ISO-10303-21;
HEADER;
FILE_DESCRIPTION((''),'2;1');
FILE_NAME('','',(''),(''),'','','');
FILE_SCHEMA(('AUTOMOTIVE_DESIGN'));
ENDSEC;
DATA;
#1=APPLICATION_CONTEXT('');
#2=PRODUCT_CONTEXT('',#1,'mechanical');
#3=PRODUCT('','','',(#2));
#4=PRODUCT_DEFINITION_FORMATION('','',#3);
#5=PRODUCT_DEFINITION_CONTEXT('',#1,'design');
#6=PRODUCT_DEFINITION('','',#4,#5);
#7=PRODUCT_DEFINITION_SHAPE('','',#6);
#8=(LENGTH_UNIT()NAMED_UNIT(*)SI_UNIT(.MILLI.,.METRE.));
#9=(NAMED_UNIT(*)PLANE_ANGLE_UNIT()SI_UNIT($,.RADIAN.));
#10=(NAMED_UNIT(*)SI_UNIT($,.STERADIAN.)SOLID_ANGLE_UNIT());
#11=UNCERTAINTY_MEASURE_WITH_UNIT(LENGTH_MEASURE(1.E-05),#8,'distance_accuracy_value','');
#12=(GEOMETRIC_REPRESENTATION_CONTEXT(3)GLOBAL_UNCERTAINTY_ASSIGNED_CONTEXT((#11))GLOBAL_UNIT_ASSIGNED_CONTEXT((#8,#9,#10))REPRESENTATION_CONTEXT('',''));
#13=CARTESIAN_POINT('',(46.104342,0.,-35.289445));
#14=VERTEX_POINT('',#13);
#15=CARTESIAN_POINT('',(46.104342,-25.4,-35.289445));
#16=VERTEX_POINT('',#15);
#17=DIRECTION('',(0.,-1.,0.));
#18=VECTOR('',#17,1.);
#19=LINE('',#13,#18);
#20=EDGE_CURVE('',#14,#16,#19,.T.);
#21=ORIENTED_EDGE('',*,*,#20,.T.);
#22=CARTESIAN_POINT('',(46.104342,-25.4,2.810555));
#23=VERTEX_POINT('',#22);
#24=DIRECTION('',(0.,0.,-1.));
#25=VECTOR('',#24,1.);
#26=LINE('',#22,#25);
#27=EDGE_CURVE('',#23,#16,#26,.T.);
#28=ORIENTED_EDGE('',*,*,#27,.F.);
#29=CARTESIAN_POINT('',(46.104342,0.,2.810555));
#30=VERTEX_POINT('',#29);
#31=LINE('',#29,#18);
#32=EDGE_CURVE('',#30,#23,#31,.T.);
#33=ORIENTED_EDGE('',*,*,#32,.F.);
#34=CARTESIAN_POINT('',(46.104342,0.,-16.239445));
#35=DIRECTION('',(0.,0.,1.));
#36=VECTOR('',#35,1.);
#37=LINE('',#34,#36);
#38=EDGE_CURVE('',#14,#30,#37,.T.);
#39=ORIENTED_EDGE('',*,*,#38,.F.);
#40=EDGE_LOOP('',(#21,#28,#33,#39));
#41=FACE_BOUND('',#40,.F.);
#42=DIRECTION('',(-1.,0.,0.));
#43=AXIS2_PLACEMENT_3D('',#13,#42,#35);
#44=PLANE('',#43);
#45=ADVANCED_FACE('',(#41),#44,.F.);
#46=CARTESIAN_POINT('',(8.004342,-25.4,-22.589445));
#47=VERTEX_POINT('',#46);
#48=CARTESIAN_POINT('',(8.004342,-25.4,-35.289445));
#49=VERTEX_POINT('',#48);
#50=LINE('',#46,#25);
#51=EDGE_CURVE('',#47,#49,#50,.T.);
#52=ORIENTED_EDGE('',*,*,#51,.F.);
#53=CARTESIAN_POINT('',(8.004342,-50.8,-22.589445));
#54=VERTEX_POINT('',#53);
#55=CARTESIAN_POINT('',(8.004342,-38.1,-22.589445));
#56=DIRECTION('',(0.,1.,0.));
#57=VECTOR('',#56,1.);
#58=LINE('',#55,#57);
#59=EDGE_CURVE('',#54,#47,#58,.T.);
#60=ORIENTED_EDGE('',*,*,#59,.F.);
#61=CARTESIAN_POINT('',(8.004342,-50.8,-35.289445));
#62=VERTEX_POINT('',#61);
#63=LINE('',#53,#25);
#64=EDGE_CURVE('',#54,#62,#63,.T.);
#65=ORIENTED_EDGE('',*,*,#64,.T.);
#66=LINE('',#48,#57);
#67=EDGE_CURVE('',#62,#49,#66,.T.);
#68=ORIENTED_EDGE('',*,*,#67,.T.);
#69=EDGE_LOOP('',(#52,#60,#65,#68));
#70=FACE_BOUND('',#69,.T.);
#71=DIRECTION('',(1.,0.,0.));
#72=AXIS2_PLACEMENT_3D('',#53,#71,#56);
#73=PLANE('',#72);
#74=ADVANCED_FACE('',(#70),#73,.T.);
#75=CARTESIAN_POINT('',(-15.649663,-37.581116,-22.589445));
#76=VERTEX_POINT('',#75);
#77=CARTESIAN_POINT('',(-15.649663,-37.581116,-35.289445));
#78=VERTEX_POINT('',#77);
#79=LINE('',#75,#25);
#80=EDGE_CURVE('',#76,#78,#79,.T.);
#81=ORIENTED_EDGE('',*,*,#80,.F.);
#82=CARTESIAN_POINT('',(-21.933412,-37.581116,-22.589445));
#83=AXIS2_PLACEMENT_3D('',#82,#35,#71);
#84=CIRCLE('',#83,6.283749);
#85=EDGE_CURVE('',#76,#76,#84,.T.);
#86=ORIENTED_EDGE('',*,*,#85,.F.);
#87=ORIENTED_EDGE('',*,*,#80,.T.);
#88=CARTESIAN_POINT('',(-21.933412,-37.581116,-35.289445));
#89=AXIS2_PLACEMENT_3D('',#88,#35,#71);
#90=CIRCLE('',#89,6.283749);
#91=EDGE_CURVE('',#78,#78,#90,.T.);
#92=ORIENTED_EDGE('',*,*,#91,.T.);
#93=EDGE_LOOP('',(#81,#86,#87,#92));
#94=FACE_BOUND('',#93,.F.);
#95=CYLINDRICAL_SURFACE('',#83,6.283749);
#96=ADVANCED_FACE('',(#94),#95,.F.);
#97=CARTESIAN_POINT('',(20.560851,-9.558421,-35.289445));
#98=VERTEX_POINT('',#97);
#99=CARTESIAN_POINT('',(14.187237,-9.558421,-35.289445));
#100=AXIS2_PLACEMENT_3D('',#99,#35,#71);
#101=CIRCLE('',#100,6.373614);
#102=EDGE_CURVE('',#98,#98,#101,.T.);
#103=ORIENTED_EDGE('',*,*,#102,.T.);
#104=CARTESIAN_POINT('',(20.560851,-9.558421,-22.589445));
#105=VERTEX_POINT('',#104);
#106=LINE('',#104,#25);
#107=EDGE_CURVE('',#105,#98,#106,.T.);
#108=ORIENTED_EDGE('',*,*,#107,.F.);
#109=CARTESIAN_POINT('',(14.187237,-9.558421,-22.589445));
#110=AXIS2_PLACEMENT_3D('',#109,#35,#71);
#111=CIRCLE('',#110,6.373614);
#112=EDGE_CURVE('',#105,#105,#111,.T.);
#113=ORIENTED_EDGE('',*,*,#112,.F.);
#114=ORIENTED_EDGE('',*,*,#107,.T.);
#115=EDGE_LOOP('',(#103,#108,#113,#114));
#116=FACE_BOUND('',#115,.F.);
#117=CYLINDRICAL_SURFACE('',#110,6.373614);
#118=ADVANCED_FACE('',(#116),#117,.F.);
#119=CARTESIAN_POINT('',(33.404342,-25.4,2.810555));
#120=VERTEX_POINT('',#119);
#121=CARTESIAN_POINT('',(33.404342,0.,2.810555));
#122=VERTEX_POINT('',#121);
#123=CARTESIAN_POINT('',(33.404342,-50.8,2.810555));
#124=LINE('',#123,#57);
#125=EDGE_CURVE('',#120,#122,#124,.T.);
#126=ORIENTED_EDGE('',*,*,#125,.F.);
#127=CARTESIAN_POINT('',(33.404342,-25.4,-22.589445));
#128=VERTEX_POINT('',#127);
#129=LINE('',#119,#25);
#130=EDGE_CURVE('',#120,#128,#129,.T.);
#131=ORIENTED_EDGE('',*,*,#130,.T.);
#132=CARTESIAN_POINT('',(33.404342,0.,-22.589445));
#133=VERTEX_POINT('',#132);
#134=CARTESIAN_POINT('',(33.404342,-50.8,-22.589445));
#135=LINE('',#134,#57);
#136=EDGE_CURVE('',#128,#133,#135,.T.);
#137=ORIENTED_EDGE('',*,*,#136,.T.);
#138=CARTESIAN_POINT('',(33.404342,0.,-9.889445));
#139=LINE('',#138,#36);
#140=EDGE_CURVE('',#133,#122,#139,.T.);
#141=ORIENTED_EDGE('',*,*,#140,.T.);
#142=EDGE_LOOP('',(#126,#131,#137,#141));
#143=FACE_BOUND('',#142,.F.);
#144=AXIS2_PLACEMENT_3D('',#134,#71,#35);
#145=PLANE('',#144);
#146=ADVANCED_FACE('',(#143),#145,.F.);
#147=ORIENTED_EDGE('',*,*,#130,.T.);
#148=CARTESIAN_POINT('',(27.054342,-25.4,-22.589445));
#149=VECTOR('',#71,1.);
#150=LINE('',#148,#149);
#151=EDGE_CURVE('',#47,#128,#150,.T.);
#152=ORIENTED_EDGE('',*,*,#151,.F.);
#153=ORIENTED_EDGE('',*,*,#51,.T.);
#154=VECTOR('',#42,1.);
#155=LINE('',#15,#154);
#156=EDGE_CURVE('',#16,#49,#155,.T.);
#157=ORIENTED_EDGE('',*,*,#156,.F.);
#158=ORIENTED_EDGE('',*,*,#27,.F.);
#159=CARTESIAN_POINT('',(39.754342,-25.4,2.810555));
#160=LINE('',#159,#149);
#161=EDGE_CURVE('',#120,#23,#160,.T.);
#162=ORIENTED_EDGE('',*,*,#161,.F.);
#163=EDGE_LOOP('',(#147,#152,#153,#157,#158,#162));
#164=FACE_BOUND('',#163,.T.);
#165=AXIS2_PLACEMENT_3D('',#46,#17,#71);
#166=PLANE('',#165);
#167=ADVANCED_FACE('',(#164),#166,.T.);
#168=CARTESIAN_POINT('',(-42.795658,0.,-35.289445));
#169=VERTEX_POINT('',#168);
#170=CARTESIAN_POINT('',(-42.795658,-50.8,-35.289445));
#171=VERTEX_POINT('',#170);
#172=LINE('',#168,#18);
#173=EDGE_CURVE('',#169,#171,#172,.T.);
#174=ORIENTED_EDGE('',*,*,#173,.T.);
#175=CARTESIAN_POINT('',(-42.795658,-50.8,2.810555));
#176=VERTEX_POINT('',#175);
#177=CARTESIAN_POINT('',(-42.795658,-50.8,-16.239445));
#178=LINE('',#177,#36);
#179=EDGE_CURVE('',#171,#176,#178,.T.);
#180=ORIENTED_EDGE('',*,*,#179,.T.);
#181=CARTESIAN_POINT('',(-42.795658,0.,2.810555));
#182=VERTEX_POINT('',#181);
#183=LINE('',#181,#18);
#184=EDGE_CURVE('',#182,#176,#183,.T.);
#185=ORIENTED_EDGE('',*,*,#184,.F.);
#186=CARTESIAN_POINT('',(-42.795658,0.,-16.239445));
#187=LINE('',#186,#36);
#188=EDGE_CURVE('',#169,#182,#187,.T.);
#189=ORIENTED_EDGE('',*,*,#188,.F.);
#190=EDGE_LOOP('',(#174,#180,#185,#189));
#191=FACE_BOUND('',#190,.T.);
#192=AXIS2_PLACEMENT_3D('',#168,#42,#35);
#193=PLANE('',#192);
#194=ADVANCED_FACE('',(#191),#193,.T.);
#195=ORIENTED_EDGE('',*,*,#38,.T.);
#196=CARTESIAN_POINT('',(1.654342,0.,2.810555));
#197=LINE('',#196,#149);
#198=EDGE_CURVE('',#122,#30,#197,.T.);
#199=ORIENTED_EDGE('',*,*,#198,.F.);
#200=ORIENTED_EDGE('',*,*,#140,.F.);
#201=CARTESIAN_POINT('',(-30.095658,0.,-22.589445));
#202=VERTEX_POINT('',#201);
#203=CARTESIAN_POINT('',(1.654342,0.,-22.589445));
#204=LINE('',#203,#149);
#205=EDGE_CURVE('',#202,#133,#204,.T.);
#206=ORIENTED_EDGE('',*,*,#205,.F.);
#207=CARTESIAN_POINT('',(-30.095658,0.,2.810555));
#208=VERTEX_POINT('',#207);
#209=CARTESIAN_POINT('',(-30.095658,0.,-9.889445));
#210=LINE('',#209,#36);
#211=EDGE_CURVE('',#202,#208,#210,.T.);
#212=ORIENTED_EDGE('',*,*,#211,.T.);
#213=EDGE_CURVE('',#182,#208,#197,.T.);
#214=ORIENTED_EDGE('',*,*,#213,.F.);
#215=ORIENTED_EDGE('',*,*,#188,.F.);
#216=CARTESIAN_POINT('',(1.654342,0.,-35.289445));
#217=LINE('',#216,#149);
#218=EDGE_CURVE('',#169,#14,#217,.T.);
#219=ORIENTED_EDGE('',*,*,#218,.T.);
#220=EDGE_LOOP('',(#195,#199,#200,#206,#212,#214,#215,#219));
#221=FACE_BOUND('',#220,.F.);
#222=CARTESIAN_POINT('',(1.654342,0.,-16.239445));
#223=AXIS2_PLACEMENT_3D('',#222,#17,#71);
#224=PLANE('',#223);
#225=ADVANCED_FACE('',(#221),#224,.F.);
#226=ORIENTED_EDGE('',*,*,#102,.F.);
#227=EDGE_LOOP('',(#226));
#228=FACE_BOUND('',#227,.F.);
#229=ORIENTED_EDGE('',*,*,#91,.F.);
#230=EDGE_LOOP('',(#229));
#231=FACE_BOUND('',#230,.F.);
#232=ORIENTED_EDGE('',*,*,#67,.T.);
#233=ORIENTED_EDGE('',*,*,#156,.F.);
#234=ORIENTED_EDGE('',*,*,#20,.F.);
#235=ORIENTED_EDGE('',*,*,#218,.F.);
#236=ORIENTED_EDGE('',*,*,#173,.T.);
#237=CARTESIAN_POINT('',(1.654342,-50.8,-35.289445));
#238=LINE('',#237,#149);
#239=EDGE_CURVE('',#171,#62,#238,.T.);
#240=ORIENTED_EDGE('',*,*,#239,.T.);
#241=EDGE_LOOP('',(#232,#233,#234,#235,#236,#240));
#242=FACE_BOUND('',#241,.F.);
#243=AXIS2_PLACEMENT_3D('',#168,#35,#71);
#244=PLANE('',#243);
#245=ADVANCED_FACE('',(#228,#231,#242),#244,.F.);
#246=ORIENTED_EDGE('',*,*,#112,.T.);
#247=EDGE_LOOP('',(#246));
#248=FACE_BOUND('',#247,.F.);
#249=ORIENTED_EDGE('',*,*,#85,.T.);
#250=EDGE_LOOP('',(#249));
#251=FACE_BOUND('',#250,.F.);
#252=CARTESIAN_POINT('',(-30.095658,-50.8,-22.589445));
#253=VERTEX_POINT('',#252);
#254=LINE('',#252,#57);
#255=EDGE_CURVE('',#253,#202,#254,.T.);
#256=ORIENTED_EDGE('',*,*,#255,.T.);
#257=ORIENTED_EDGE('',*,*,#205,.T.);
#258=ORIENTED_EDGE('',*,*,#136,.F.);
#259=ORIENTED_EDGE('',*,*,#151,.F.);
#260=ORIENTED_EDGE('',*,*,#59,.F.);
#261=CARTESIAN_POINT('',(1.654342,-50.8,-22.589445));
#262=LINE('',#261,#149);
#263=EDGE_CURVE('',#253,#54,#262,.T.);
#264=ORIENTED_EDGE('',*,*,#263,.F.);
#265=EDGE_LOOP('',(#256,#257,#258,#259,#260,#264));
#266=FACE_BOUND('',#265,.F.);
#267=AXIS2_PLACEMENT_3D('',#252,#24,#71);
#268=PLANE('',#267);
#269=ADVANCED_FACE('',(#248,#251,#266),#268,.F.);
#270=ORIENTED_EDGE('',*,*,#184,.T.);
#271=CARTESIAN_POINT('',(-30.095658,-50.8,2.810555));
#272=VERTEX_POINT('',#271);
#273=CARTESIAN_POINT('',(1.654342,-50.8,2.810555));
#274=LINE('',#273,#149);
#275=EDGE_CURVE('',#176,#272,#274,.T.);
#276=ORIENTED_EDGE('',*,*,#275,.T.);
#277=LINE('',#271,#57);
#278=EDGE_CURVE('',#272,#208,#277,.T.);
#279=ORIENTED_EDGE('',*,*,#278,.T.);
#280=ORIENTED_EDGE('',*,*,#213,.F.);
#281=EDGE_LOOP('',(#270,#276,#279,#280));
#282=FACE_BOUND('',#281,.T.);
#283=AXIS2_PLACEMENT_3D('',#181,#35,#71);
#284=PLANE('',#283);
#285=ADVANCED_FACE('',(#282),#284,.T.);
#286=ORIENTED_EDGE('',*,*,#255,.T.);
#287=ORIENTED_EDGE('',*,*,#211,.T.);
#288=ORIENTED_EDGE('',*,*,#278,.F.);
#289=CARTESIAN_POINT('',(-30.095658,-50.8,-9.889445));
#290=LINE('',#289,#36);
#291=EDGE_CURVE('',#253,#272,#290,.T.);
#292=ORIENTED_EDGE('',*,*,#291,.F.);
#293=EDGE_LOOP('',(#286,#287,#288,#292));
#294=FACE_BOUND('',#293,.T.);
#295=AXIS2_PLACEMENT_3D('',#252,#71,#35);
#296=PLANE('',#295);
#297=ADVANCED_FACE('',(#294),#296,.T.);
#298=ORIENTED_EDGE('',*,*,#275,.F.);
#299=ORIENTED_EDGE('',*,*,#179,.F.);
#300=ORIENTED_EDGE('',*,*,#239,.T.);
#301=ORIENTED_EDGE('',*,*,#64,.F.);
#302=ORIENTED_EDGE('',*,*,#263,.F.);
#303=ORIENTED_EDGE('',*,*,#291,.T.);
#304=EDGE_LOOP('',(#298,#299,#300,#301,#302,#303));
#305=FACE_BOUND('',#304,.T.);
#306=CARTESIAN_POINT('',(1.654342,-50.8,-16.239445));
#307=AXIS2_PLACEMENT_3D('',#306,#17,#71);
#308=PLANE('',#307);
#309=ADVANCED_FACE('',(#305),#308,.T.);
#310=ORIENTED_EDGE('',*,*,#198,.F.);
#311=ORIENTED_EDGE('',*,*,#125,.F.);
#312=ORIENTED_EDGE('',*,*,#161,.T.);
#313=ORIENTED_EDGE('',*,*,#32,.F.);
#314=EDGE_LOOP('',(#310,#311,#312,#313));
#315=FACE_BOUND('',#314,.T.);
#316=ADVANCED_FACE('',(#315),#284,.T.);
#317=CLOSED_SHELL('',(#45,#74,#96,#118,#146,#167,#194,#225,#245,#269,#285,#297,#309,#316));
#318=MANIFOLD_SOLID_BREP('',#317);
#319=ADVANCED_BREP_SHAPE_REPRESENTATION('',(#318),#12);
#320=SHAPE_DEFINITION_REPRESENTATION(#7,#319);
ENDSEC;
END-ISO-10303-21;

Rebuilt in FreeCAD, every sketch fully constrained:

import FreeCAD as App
import Part
import Sketcher
from FreeCAD import Vector
Q = App.Units.Quantity


def add_polygon(sketch, points):
    """Adds a closed chain of lines whose ends are joined by coincident constraints."""
    first, n = sketch.GeometryCount, len(points)
    for a, b in zip(points, points[1:] + points[:1]):
        sketch.addGeometry(Part.LineSegment(App.Vector(*a, 0), App.Vector(*b, 0)), False)
    for i in range(n):
        sketch.addConstraint(Sketcher.Constraint("Coincident", first + i, 2, first + (i + 1) % n, 1))

doc = App.newDocument("Part")
params = doc.addObject("Spreadsheet::Sheet", "Params")
for row, (alias, value) in enumerate([
    ("sketch1_width", "3.5 in"),
    ("sketch1_height", "1.5 in"),
    ("pad1_length", "2 in"),
    ("sketch2_height", "1 in"),
    ("sketch2_width", "2.5 in"),
    ("pocket1_length", "2 in"),
    ("sketch3_height", "1 in"),
    ("sketch3_width", "1.5 in"),
    ("pocket2_length", "1.5 in"),
    ("sketch4_height", "1 in"),
    ("sketch4_width", "0.5 in"),
    ("pocket3_length", "1.5 in"),
    ("pocket4_length", "1 in"),
    ("pocket5_length", "1 in"),
], start=1):
    params.set(f"A{row}", alias)
    params.set(f"B{row}", "=" + value)
    params.setAlias(f"B{row}", alias)

body = doc.addObject("PartDesign::Body", "Body")

# Sketch on XZ plane
sketch1 = body.newObject("Sketcher::SketchObject", "Sketch")
sketch1.AttachmentSupport = (doc.getObject("XZ_Plane"), [""])
sketch1.MapMode = "FlatFace"
add_polygon(sketch1, [(-43, 3), (-43, -35), (46, -35), (46, 3)])  # lines 0-3
sketch1.addConstraint(Sketcher.Constraint("Vertical", 0))
sketch1.addConstraint(Sketcher.Constraint("Horizontal", 1))
sketch1.addConstraint(Sketcher.Constraint("Vertical", 2))
sketch1.addConstraint(Sketcher.Constraint("Horizontal", 3))
sketch1.addConstraint(Sketcher.Constraint("DistanceX", 1, 1, 1, 2, Q("3.5 in")))
sketch1.addConstraint(Sketcher.Constraint("DistanceY", 0, 2, 0, 1, Q("1.5 in")))
sketch1.addConstraint(Sketcher.Constraint("DistanceX", 0, 2, -1, 1, 42.795658))
sketch1.addConstraint(Sketcher.Constraint("DistanceY", 0, 2, -1, 1, 35.289445))
sketch1.setExpression("Constraints[8]", "Params.sketch1_width")
sketch1.setExpression("Constraints[9]", "Params.sketch1_height")
pad1 = body.newObject("PartDesign::Pad", "Pad")
pad1.Profile = sketch1
pad1.setExpression("Length", "Params.pad1_length")

# Sketch on XZ plane
sketch2 = body.newObject("Sketcher::SketchObject", "Sketch001")
sketch2.AttachmentSupport = (doc.getObject("XZ_Plane"), [""])
sketch2.MapMode = "FlatFace"
sketch2.AttachmentOffset = App.Placement(Vector(0, 0, 2 * 25.4), App.Rotation())
add_polygon(sketch2, [(-30, 3), (-30, -23), (33, -23), (33, 3)])  # lines 0-3
sketch2.addConstraint(Sketcher.Constraint("Vertical", 0))
sketch2.addConstraint(Sketcher.Constraint("Horizontal", 1))
sketch2.addConstraint(Sketcher.Constraint("Vertical", 2))
sketch2.addConstraint(Sketcher.Constraint("Horizontal", 3))
sketch2.addConstraint(Sketcher.Constraint("DistanceY", 0, 2, 0, 1, Q("1 in")))
sketch2.addConstraint(Sketcher.Constraint("DistanceX", 1, 1, 1, 2, Q("2.5 in")))
sketch2.addConstraint(Sketcher.Constraint("DistanceX", 0, 2, -1, 1, 30.095658))
sketch2.addConstraint(Sketcher.Constraint("DistanceY", 0, 2, -1, 1, 22.589445))
sketch2.setExpression("Constraints[8]", "Params.sketch2_height")
sketch2.setExpression("Constraints[9]", "Params.sketch2_width")
pocket1 = body.newObject("PartDesign::Pocket", "Pocket")
pocket1.Profile = sketch2
pocket1.setExpression("Length", "Params.pocket1_length")

# Sketch on XY plane
sketch3 = body.newObject("Sketcher::SketchObject", "Sketch002")
sketch3.AttachmentSupport = (doc.getObject("XY_Plane"), [""])
sketch3.MapMode = "FlatFace"
sketch3.AttachmentOffset = App.Placement(Vector(0, 0, -22.589445), App.Rotation())
add_polygon(sketch3, [(8, -25), (8, -51), (46, -51), (46, -25)])  # lines 0-3
sketch3.addConstraint(Sketcher.Constraint("Vertical", 0))
sketch3.addConstraint(Sketcher.Constraint("Horizontal", 1))
sketch3.addConstraint(Sketcher.Constraint("Vertical", 2))
sketch3.addConstraint(Sketcher.Constraint("Horizontal", 3))
sketch3.addConstraint(Sketcher.Constraint("DistanceY", 0, 2, 0, 1, Q("1 in")))
sketch3.addConstraint(Sketcher.Constraint("DistanceX", 1, 1, 1, 2, Q("1.5 in")))
sketch3.addConstraint(Sketcher.Constraint("DistanceY", 0, 2, -1, 1, Q("2 in")))
sketch3.addConstraint(Sketcher.Constraint("DistanceX", -1, 1, 0, 2, 8.004342))
sketch3.setExpression("Constraints[8]", "Params.sketch3_height")
sketch3.setExpression("Constraints[9]", "Params.sketch3_width")
pocket2 = body.newObject("PartDesign::Pocket", "Pocket001")
pocket2.Profile = sketch3
pocket2.setExpression("Length", "Params.pocket2_length")

# Sketch on XY plane
sketch4 = body.newObject("Sketcher::SketchObject", "Sketch003")
sketch4.AttachmentSupport = (doc.getObject("XY_Plane"), [""])
sketch4.MapMode = "FlatFace"
sketch4.AttachmentOffset = App.Placement(Vector(0, 0, 2.810555), App.Rotation())
add_polygon(sketch4, [(33, -25), (33, -51), (46, -51), (46, -25)])  # lines 0-3
sketch4.addConstraint(Sketcher.Constraint("Vertical", 0))
sketch4.addConstraint(Sketcher.Constraint("Horizontal", 1))
sketch4.addConstraint(Sketcher.Constraint("Vertical", 2))
sketch4.addConstraint(Sketcher.Constraint("Horizontal", 3))
sketch4.addConstraint(Sketcher.Constraint("DistanceY", 0, 2, 0, 1, Q("1 in")))
sketch4.addConstraint(Sketcher.Constraint("DistanceX", 1, 1, 1, 2, Q("0.5 in")))
sketch4.addConstraint(Sketcher.Constraint("DistanceY", 0, 2, -1, 1, Q("2 in")))
sketch4.addConstraint(Sketcher.Constraint("DistanceX", -1, 1, 0, 2, 33.404342))
sketch4.setExpression("Constraints[8]", "Params.sketch4_height")
sketch4.setExpression("Constraints[9]", "Params.sketch4_width")
pocket3 = body.newObject("PartDesign::Pocket", "Pocket002")
pocket3.Profile = sketch4
pocket3.setExpression("Length", "Params.pocket3_length")

# Sketch on XY plane
sketch5 = body.newObject("Sketcher::SketchObject", "Sketch004")
sketch5.AttachmentSupport = (doc.getObject("XY_Plane"), [""])
sketch5.MapMode = "FlatFace"
sketch5.AttachmentOffset = App.Placement(Vector(0, 0, -22.589445), App.Rotation())
sketch5.addGeometry(Part.Circle(Vector(14, -10, 0), Vector(0, 0, 1), 6), False)
sketch5.addConstraint(Sketcher.Constraint("Diameter", 0, 12.747228))
sketch5.addConstraint(Sketcher.Constraint("DistanceY", 0, 3, -1, 1, 9.558421))
sketch5.addConstraint(Sketcher.Constraint("DistanceX", -1, 1, 0, 3, 14.187237))
pocket4 = body.newObject("PartDesign::Pocket", "Pocket003")
pocket4.Profile = sketch5
pocket4.setExpression("Length", "Params.pocket4_length")

# Sketch on XY plane
sketch6 = body.newObject("Sketcher::SketchObject", "Sketch005")
sketch6.AttachmentSupport = (doc.getObject("XY_Plane"), [""])
sketch6.MapMode = "FlatFace"
sketch6.AttachmentOffset = App.Placement(Vector(0, 0, -22.589445), App.Rotation())
sketch6.addGeometry(Part.Circle(Vector(-22, -38, 0), Vector(0, 0, 1), 6), False)
sketch6.addConstraint(Sketcher.Constraint("Diameter", 0, 12.567498))
sketch6.addConstraint(Sketcher.Constraint("DistanceX", 0, 3, -1, 1, 21.933412))
sketch6.addConstraint(Sketcher.Constraint("DistanceY", 0, 3, -1, 1, 37.581116))
pocket5 = body.newObject("PartDesign::Pocket", "Pocket004")
pocket5.Profile = sketch6
pocket5.setExpression("Length", "Params.pocket5_length")

doc.recompute()
